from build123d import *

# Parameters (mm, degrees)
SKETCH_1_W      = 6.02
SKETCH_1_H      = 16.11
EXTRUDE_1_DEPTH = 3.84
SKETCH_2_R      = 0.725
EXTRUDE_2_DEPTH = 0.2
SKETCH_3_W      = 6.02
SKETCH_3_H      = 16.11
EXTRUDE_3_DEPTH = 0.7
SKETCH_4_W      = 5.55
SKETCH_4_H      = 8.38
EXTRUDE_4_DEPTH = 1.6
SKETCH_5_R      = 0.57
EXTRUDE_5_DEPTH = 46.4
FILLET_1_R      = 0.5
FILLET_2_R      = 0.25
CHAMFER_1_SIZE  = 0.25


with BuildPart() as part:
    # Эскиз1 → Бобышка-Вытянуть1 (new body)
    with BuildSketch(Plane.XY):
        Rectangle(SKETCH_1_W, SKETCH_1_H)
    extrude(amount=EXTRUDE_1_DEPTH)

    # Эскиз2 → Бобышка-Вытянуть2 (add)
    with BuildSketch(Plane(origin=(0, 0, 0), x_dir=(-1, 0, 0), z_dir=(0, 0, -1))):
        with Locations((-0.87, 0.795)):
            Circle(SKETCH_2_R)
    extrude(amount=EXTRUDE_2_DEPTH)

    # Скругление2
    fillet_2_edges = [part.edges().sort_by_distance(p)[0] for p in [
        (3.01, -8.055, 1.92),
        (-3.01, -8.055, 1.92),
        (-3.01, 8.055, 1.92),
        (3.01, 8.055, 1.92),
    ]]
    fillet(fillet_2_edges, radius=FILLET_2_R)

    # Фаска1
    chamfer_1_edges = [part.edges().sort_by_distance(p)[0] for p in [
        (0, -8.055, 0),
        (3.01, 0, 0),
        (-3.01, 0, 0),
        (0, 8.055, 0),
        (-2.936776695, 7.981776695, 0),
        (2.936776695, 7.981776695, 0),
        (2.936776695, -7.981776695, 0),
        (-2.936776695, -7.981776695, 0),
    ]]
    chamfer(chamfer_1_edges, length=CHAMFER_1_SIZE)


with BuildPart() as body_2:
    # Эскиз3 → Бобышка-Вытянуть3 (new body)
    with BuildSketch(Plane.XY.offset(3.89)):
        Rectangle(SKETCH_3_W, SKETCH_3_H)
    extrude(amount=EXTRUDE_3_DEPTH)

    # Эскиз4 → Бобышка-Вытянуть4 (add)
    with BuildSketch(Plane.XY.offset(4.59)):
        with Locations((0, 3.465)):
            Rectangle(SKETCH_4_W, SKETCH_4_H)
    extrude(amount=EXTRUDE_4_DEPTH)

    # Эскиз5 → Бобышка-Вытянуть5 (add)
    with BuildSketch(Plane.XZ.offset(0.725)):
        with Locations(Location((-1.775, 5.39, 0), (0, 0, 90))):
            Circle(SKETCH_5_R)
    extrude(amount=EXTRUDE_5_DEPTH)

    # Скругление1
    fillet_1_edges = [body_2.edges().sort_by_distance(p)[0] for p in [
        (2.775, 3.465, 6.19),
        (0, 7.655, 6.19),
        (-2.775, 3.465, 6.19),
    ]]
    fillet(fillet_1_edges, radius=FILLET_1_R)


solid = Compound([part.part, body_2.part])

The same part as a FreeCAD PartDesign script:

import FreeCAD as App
import Part
import Sketcher
from FreeCAD import Vector
Q = App.Units.Quantity


def edges_at(feature, points):
    """Names of the edges that pass closest to the given points."""
    edges = feature.Shape.Edges
    near = lambda p: min(range(len(edges)), key=lambda i: edges[i].distToShape(Part.Vertex(*p))[0])
    return sorted({f"Edge{near(p) + 1}" for p in points})

doc = App.newDocument("Part")
body = doc.addObject("PartDesign::Body", "Body")

# Sketch on XY plane
sketch1 = body.newObject("Sketcher::SketchObject", "Sketch")
sketch1.AttachmentSupport = (doc.getObject("XY_Plane"), [""])
sketch1.MapMode = "FlatFace"
sketch1.addGeometry([
    Part.LineSegment(Vector(-3.01, 8.055, 0), Vector(-3.01, -8.055, 0)),
    Part.LineSegment(Vector(-3.01, -8.055, 0), Vector(3.01, -8.055, 0)),
    Part.LineSegment(Vector(3.01, -8.055, 0), Vector(3.01, 8.055, 0)),
    Part.LineSegment(Vector(3.01, 8.055, 0), Vector(-3.01, 8.055, 0)),
], False)
sketch1.addConstraint([
    Sketcher.Constraint("Coincident", 0, 2, 1, 1),
    Sketcher.Constraint("Coincident", 1, 2, 2, 1),
    Sketcher.Constraint("Coincident", 2, 2, 3, 1),
    Sketcher.Constraint("Coincident", 3, 2, 0, 1),
    Sketcher.Constraint("Vertical", 0),
    Sketcher.Constraint("Horizontal", 1),
    Sketcher.Constraint("Vertical", 2),
    Sketcher.Constraint("Horizontal", 3),
    Sketcher.Constraint("Symmetric", 0, 2, 2, 2, -1, 1),
    Sketcher.Constraint("DistanceX", 1, 1, 1, 2, Q("6.02 mm")),
    Sketcher.Constraint("DistanceY", 0, 2, 0, 1, Q("16.11 mm")),
])
pad1 = body.newObject("PartDesign::Pad", "Pad")
pad1.Profile = sketch1
pad1.Length = 3.84

# Sketch on XY plane
sketch2 = body.newObject("Sketcher::SketchObject", "Sketch001")
sketch2.AttachmentSupport = (doc.getObject("XY_Plane"), [""])
sketch2.MapMode = "FlatFace"
sketch2.addGeometry(Part.Circle(Vector(0.87, 0.795, 0), Vector(0, 0, 1), 0.725), False)
sketch2.addConstraint([
    Sketcher.Constraint("Diameter", 0, Q("1.45 mm")),
    Sketcher.Constraint("DistanceX", -1, 1, 0, 3, Q("0.87 mm")),
    Sketcher.Constraint("DistanceY", -1, 1, 0, 3, Q("0.795 mm")),
])
pad2 = body.newObject("PartDesign::Pad", "Pad001")
pad2.Profile = sketch2
pad2.Length = 0.2
pad2.Reversed = True
doc.recompute()

fillet = body.newObject("PartDesign::Fillet", "Fillet")
fillet.Base = (pad2, edges_at(pad2, [
    (3.01, -8.055, 1.92),
    (-3.01, -8.055, 1.92),
    (-3.01, 8.055, 1.92),
    (3.01, 8.055, 1.92),
]))
fillet.Radius = 0.25
doc.recompute()

chamfer = body.newObject("PartDesign::Chamfer", "Chamfer")
chamfer.Base = (fillet, edges_at(fillet, [
    (0, -8.055, 0),
    (3.01, 0, 0),
    (-3.01, 0, 0),
    (0, 8.055, 0),
    (-2.937, 7.982, 0),
    (2.937, 7.982, 0),
    (2.937, -7.982, 0),
    (-2.937, -7.982, 0),
]))
chamfer.Size = 0.25
body2 = doc.addObject("PartDesign::Body", "Body001")

# Sketch on XY plane
sketch3 = body2.newObject("Sketcher::SketchObject", "Sketch002")
sketch3.AttachmentSupport = (doc.getObject("XY_Plane001"), [""])
sketch3.MapMode = "FlatFace"
sketch3.AttachmentOffset = App.Placement(Vector(0, 0, 3.89), App.Rotation())
sketch3.addGeometry([
    Part.LineSegment(Vector(-3.01, 8.055, 0), Vector(-3.01, -8.055, 0)),
    Part.LineSegment(Vector(-3.01, -8.055, 0), Vector(3.01, -8.055, 0)),
    Part.LineSegment(Vector(3.01, -8.055, 0), Vector(3.01, 8.055, 0)),
    Part.LineSegment(Vector(3.01, 8.055, 0), Vector(-3.01, 8.055, 0)),
], False)
sketch3.addConstraint([
    Sketcher.Constraint("Coincident", 0, 2, 1, 1),
    Sketcher.Constraint("Coincident", 1, 2, 2, 1),
    Sketcher.Constraint("Coincident", 2, 2, 3, 1),
    Sketcher.Constraint("Coincident", 3, 2, 0, 1),
    Sketcher.Constraint("Vertical", 0),
    Sketcher.Constraint("Horizontal", 1),
    Sketcher.Constraint("Vertical", 2),
    Sketcher.Constraint("Horizontal", 3),
    Sketcher.Constraint("Symmetric", 0, 2, 2, 2, -1, 1),
    Sketcher.Constraint("DistanceX", 1, 1, 1, 2, Q("6.02 mm")),
    Sketcher.Constraint("DistanceY", 0, 2, 0, 1, Q("16.11 mm")),
])
pad3 = body2.newObject("PartDesign::Pad", "Pad002")
pad3.Profile = sketch3
pad3.Length = 0.7

# Sketch on XY plane
sketch4 = body2.newObject("Sketcher::SketchObject", "Sketch003")
sketch4.AttachmentSupport = (doc.getObject("XY_Plane001"), [""])
sketch4.MapMode = "FlatFace"
sketch4.AttachmentOffset = App.Placement(Vector(0, 0, 4.59), App.Rotation())
sketch4.addGeometry([
    Part.LineSegment(Vector(-2.775, 7.655, 0), Vector(-2.775, -0.725, 0)),
    Part.LineSegment(Vector(-2.775, -0.725, 0), Vector(2.775, -0.725, 0)),
    Part.LineSegment(Vector(2.775, -0.725, 0), Vector(2.775, 7.655, 0)),
    Part.LineSegment(Vector(2.775, 7.655, 0), Vector(-2.775, 7.655, 0)),
], False)
sketch4.addConstraint([
    Sketcher.Constraint("Coincident", 0, 2, 1, 1),
    Sketcher.Constraint("Coincident", 1, 2, 2, 1),
    Sketcher.Constraint("Coincident", 2, 2, 3, 1),
    Sketcher.Constraint("Coincident", 3, 2, 0, 1),
    Sketcher.Constraint("Vertical", 0),
    Sketcher.Constraint("Horizontal", 1),
    Sketcher.Constraint("Vertical", 2),
    Sketcher.Constraint("Horizontal", 3),
    Sketcher.Constraint("DistanceX", 1, 1, 1, 2, Q("5.55 mm")),
    Sketcher.Constraint("DistanceY", 0, 2, 0, 1, Q("8.38 mm")),
    Sketcher.Constraint("DistanceX", 0, 2, -1, 1, Q("2.775 mm")),
    Sketcher.Constraint("DistanceY", 0, 2, -1, 1, Q("0.725 mm")),
])
pad4 = body2.newObject("PartDesign::Pad", "Pad003")
pad4.Profile = sketch4
pad4.Length = 1.6

# Sketch on XZ plane
sketch5 = body2.newObject("Sketcher::SketchObject", "Sketch004")
sketch5.AttachmentSupport = (doc.getObject("XZ_Plane001"), [""])
sketch5.MapMode = "FlatFace"
sketch5.AttachmentOffset = App.Placement(Vector(0, 0, 0.725), App.Rotation())
sketch5.addGeometry(Part.Circle(Vector(-1.775, 5.39, 0), Vector(0, 0, 1), 0.57), False)
sketch5.addConstraint([
    Sketcher.Constraint("Diameter", 0, Q("1.14 mm")),
    Sketcher.Constraint("DistanceY", -1, 1, 0, 3, Q("5.39 mm")),
    Sketcher.Constraint("DistanceX", 0, 3, -1, 1, Q("1.775 mm")),
])
pad5 = body2.newObject("PartDesign::Pad", "Pad004")
pad5.Profile = sketch5
pad5.Length = 46.4
doc.recompute()

fillet2 = body2.newObject("PartDesign::Fillet", "Fillet001")
fillet2.Base = (pad5, edges_at(pad5, [(2.775, 3.465, 6.19), (0, 7.655, 6.19), (-2.775, 3.465, 6.19)]))
fillet2.Radius = 0.5

doc.recompute()
